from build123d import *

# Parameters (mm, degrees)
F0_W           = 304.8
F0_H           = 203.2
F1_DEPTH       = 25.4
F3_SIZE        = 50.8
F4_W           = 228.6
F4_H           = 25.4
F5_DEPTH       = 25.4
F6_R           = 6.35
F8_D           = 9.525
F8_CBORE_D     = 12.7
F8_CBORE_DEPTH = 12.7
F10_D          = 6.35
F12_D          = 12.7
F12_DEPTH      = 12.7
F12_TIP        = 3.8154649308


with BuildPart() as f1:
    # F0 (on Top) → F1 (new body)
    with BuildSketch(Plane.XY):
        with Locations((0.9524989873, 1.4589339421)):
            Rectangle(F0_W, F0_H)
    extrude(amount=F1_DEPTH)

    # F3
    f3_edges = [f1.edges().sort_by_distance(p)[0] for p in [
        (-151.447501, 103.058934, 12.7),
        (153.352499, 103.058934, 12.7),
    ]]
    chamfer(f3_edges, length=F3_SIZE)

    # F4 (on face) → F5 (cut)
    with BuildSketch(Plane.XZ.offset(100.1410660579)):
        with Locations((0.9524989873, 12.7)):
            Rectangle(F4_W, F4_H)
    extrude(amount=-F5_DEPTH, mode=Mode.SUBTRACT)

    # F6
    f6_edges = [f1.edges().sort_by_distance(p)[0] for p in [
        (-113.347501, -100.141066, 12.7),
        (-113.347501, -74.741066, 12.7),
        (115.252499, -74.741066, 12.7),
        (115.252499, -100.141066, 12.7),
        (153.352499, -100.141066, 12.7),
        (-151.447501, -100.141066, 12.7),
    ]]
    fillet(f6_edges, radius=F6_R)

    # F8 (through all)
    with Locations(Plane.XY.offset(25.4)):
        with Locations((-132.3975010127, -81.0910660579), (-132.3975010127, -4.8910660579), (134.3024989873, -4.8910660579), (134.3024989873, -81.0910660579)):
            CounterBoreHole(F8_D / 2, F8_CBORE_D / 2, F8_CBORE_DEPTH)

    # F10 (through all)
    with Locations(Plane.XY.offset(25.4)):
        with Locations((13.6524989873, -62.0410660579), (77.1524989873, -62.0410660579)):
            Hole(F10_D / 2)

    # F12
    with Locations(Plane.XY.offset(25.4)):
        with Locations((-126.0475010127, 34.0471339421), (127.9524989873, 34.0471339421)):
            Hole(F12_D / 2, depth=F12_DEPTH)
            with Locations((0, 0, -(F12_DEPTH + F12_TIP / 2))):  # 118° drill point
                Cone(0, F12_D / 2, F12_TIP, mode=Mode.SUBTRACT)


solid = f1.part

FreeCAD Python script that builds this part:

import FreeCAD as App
import Part
import Sketcher
from FreeCAD import Vector
Q = App.Units.Quantity


def edges_at(feature, points):
    """Names of the edges that pass closest to the given points."""
    edges = feature.Shape.Edges
    near = lambda p: min(range(len(edges)), key=lambda i: edges[i].distToShape(Part.Vertex(*p))[0])
    return sorted({f"Edge{near(p) + 1}" for p in points})


def add_polygon(sketch, points):
    """Adds a closed chain of lines whose ends are joined by coincident constraints."""
    first, n = sketch.GeometryCount, len(points)
    for a, b in zip(points, points[1:] + points[:1]):
        sketch.addGeometry(Part.LineSegment(App.Vector(*a, 0), App.Vector(*b, 0)), False)
    for i in range(n):
        sketch.addConstraint(Sketcher.Constraint("Coincident", first + i, 2, first + (i + 1) % n, 1))

doc = App.newDocument("Part")
body = doc.addObject("PartDesign::Body", "Body")

sketch1 = body.newObject("Sketcher::SketchObject", "Sketch")
sketch1.AttachmentSupport = (doc.getObject("XY_Plane"), [""])
sketch1.MapMode = "FlatFace"
add_polygon(sketch1, [(-151, 103), (-151, -100), (153, -100), (153, 103)])
sketch1.addConstraint([
    Sketcher.Constraint("Vertical", 0),
    Sketcher.Constraint("Horizontal", 1),
    Sketcher.Constraint("Vertical", 2),
    Sketcher.Constraint("Horizontal", 3),
    Sketcher.Constraint("DistanceX", 1, 1, 1, 2, Q("12 in")),
    Sketcher.Constraint("DistanceY", 0, 2, 0, 1, Q("8 in")),
    Sketcher.Constraint("DistanceX", 0, 2, -1, 1, Q("5.9625 in")),
    Sketcher.Constraint("DistanceY", 0, 2, -1, 1, 100.141066),
])
pad1 = body.newObject("PartDesign::Pad", "Pad")
pad1.Profile = sketch1
pad1.Length = Q("1 in")
doc.recompute()

chamfer = body.newObject("PartDesign::Chamfer", "Chamfer")
chamfer.Base = (pad1, edges_at(pad1, [(-151.448, 103.059, 12.7), (153.352, 103.059, 12.7)]))
chamfer.Size = Q("2 in")

sketch2 = body.newObject("Sketcher::SketchObject", "Sketch001")
sketch2.AttachmentSupport = (doc.getObject("XZ_Plane"), [""])
sketch2.MapMode = "FlatFace"
sketch2.AttachmentOffset = App.Placement(Vector(0, 0, 100.141066), App.Rotation())
add_polygon(sketch2, [(-113, 25), (-113, 0), (115, 0), (115, 25)])
sketch2.addConstraint([
    Sketcher.Constraint("Vertical", 0),
    Sketcher.Constraint("Horizontal", 1),
    Sketcher.Constraint("Vertical", 2),
    Sketcher.Constraint("Horizontal", 3),
    Sketcher.Constraint("PointOnObject", 0, 2, -1),
    Sketcher.Constraint("DistanceX", 1, 1, 1, 2, Q("9 in")),
    Sketcher.Constraint("DistanceY", 0, 2, 0, 1, Q("1 in")),
    Sketcher.Constraint("DistanceX", 0, 2, -1, 1, Q("4.4625 in")),
])
pocket1 = body.newObject("PartDesign::Pocket", "Pocket")
pocket1.Profile = sketch2
pocket1.Length = Q("1 in")
doc.recompute()

fillet = body.newObject("PartDesign::Fillet", "Fillet")
fillet.Base = (pocket1, edges_at(pocket1, [
    (-113.348, -100.141, 12.7),
    (-113.348, -74.741, 12.7),
    (115.252, -74.741, 12.7),
    (115.252, -100.141, 12.7),
    (153.352, -100.141, 12.7),
    (-151.448, -100.141, 12.7),
]))
fillet.Radius = Q("0.25 in")

sketch3 = body.newObject("Sketcher::SketchObject", "Sketch002")
sketch3.AttachmentSupport = (doc.getObject("XY_Plane"), [""])
sketch3.MapMode = "FlatFace"
sketch3.AttachmentOffset = App.Placement(Vector(0, 0, 1 * 25.4), App.Rotation())
sketch3.addGeometry([
    Part.Circle(Vector(-132.4, -81.1, 0), Vector(0, 0, 1), 4.8),
    Part.Circle(Vector(-132.4, -4.9, 0), Vector(0, 0, 1), 4.8),
    Part.Circle(Vector(134.3, -4.9, 0), Vector(0, 0, 1), 4.8),
    Part.Circle(Vector(134.3, -81.1, 0), Vector(0, 0, 1), 4.8),
], False)
sketch3.addConstraint([
    Sketcher.Constraint("Equal", 0, 1),
    Sketcher.Constraint("Equal", 1, 2),
    Sketcher.Constraint("Equal", 2, 3),
    Sketcher.Constraint("Horizontal", 1, 3, 2, 3),
    Sketcher.Constraint("Horizontal", 0, 3, 3, 3),
    Sketcher.Constraint("Vertical", 0, 3, 1, 3),
    Sketcher.Constraint("Vertical", 2, 3, 3, 3),
    Sketcher.Constraint("Diameter", 0, Q("0.375 in")),
    Sketcher.Constraint("DistanceY", 0, 3, 1, 3, Q("3 in")),
    Sketcher.Constraint("DistanceX", 1, 3, 2, 3, Q("10.5 in")),
    Sketcher.Constraint("DistanceX", 0, 3, -1, 1, Q("5.2125 in")),
    Sketcher.Constraint("DistanceY", 0, 3, -1, 1, 81.091066),
])
doc.recompute()
hole = body.newObject("PartDesign::Hole", "Hole")
hole.Profile = sketch3
hole.ThreadType = "None"
hole.Diameter = Q("0.375 in")
hole.DepthType = "ThroughAll"
hole.HoleCutType = "Counterbore"
hole.HoleCutDiameter = Q("0.5 in")
hole.HoleCutDepth = Q("0.5 in")

sketch4 = body.newObject("Sketcher::SketchObject", "Sketch003")
sketch4.AttachmentSupport = (doc.getObject("XY_Plane"), [""])
sketch4.MapMode = "FlatFace"
sketch4.AttachmentOffset = App.Placement(Vector(0, 0, 1 * 25.4), App.Rotation())
sketch4.addGeometry([
    Part.Circle(Vector(13.7, -62, 0), Vector(0, 0, 1), 3.2),
    Part.Circle(Vector(77.2, -62, 0), Vector(0, 0, 1), 3.2),
], False)
sketch4.addConstraint([
    Sketcher.Constraint("Equal", 0, 1),
    Sketcher.Constraint("Horizontal", 0, 3, 1, 3),
    Sketcher.Constraint("Diameter", 0, Q("0.25 in")),
    Sketcher.Constraint("DistanceX", 0, 3, 1, 3, Q("2.5 in")),
    Sketcher.Constraint("DistanceX", -1, 1, 0, 3, Q("0.5375 in")),
    Sketcher.Constraint("DistanceY", 0, 3, -1, 1, 62.041066),
])
doc.recompute()
hole2 = body.newObject("PartDesign::Hole", "Hole001")
hole2.Profile = sketch4
hole2.ThreadType = "None"
hole2.Diameter = Q("0.25 in")
hole2.DepthType = "ThroughAll"

sketch5 = body.newObject("Sketcher::SketchObject", "Sketch004")
sketch5.AttachmentSupport = (doc.getObject("XY_Plane"), [""])
sketch5.MapMode = "FlatFace"
sketch5.AttachmentOffset = App.Placement(Vector(0, 0, 1 * 25.4), App.Rotation())
sketch5.addGeometry([
    Part.Circle(Vector(-126, 34, 0), Vector(0, 0, 1), 6),
    Part.Circle(Vector(128, 34, 0), Vector(0, 0, 1), 6),
], False)
sketch5.addConstraint([
    Sketcher.Constraint("Equal", 0, 1),
    Sketcher.Constraint("Horizontal", 0, 3, 1, 3),
    Sketcher.Constraint("Diameter", 0, Q("0.5 in")),
    Sketcher.Constraint("DistanceX", 0, 3, 1, 3, Q("10 in")),
    Sketcher.Constraint("DistanceX", 0, 3, -1, 1, Q("4.9625 in")),
    Sketcher.Constraint("DistanceY", -1, 1, 0, 3, 34.047134),
])
doc.recompute()
hole3 = body.newObject("PartDesign::Hole", "Hole002")
hole3.Profile = sketch5
hole3.ThreadType = "None"
hole3.Diameter = Q("0.5 in")
hole3.DepthType = "Dimension"
hole3.Depth = Q("0.5 in")
hole3.DrillPoint = "Angled"
hole3.DrillPointAngle = 118

doc.recompute()
